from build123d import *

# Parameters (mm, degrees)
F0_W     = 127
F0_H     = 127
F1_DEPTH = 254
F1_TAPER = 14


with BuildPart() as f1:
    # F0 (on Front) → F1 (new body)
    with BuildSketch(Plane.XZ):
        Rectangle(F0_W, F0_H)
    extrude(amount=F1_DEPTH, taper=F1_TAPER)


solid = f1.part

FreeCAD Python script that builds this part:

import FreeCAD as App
import Part
import Sketcher
Q = App.Units.Quantity


def add_polygon(sketch, points):
    """Adds a closed chain of lines whose ends are joined by coincident constraints."""
    first, n = sketch.GeometryCount, len(points)
    for a, b in zip(points, points[1:] + points[:1]):
        sketch.addGeometry(Part.LineSegment(App.Vector(*a, 0), App.Vector(*b, 0)), False)
    for i in range(n):
        sketch.addConstraint(Sketcher.Constraint("Coincident", first + i, 2, first + (i + 1) % n, 1))

doc = App.newDocument("Part")
params = doc.addObject("Spreadsheet::Sheet", "Params")
for row, (alias, value) in enumerate([
    ("sketch1_width", "5 in"),
    ("pad1_length", "10 in"),
    ("pad1_taper", "-14 deg"),
], start=1):
    params.set(f"A{row}", alias)
    params.set(f"B{row}", "=" + value)
    params.setAlias(f"B{row}", alias)

body = doc.addObject("PartDesign::Body", "Body")

# Sketch on XZ plane
sketch1 = doc.addObject("Sketcher::SketchObject", "Sketch")
body.addObject(sketch1)
sketch1.AttachmentSupport = (doc.XZ_Plane, [""])
sketch1.MapMode = "FlatFace"
add_polygon(sketch1, [(-64, 64), (-64, -64), (64, -64), (64, 64)])  # lines 0-3
sketch1.addConstraint([
    Sketcher.Constraint("Vertical", 0),
    Sketcher.Constraint("Horizontal", 1),
    Sketcher.Constraint("Vertical", 2),
    Sketcher.Constraint("Horizontal", 3),
    Sketcher.Constraint("Symmetric", 0, 2, 2, 2, -1, 1),
    Sketcher.Constraint("Equal", 3, 0),
    Sketcher.Constraint("DistanceX", 1, 1, 1, 2, Q("5 in")),
])
sketch1.setExpression("Constraints[10]", "Params.sketch1_width")
pad1 = doc.addObject("PartDesign::Pad", "Pad")
body.addObject(pad1)
pad1.Profile = sketch1
pad1.setExpression("Length", "Params.pad1_length")
pad1.setExpression("TaperAngle", "Params.pad1_taper")

doc.recompute()
